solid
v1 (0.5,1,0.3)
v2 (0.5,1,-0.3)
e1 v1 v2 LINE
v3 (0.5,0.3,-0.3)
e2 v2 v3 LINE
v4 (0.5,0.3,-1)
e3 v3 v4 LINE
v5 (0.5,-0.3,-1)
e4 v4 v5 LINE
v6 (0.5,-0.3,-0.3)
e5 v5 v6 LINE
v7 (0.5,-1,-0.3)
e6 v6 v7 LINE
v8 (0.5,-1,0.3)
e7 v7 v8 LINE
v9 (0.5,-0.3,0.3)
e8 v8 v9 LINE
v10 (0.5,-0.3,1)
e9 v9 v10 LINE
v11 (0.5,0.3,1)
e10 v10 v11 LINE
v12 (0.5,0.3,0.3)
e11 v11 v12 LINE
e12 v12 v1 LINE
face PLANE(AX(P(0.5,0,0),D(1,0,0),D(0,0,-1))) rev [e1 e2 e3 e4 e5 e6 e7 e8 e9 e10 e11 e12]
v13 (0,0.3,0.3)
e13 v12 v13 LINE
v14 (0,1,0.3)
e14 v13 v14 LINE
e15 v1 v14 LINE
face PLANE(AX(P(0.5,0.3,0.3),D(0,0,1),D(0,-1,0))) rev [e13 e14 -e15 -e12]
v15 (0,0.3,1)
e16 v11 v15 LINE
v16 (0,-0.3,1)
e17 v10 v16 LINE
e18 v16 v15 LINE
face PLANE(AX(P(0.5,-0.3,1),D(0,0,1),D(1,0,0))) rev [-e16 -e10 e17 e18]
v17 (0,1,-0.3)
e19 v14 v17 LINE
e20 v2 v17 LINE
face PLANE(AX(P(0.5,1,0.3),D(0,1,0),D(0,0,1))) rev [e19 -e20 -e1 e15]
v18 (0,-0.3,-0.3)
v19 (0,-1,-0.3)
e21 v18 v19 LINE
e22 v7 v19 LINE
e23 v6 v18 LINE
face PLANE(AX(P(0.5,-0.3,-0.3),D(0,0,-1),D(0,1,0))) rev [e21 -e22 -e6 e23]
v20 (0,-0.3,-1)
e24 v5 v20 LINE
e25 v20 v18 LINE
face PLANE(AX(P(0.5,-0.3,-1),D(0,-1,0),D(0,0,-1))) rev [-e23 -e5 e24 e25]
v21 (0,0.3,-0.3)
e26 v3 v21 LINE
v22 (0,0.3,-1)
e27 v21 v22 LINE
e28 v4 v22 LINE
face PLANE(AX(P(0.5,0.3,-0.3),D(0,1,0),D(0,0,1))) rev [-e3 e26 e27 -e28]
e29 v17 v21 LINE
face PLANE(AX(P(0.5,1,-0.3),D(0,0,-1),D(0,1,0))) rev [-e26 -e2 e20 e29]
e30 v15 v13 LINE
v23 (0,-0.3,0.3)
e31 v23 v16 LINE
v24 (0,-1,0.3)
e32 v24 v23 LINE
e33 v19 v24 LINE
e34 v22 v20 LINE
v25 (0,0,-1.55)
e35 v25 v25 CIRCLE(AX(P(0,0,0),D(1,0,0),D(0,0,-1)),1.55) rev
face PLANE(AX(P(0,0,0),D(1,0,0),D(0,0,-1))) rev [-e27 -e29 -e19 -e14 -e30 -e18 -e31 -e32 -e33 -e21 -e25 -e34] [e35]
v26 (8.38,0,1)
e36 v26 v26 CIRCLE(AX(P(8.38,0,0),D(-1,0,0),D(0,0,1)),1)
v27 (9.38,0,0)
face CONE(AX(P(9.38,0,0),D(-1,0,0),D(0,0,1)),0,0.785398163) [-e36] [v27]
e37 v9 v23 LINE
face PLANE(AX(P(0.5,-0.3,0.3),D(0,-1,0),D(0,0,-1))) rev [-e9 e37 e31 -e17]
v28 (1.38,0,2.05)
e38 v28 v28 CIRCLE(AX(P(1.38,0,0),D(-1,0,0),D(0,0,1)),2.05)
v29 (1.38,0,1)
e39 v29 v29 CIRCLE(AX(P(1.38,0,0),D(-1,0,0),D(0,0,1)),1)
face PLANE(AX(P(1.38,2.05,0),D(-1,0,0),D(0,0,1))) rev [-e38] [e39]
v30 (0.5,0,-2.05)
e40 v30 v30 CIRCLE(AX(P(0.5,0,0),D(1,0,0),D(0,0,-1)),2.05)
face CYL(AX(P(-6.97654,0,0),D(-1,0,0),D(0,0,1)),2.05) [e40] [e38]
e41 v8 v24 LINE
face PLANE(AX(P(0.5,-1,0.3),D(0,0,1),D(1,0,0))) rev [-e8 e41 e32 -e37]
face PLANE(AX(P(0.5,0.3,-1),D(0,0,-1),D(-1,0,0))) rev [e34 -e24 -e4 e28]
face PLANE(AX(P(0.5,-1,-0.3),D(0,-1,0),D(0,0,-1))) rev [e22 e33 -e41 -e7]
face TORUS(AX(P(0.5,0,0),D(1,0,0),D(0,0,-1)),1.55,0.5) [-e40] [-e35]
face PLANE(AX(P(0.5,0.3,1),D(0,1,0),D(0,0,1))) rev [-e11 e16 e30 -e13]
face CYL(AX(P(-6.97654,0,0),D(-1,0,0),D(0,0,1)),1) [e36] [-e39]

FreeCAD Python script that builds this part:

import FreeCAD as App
import Part
import Sketcher
from FreeCAD import Vector
Q = App.Units.Quantity


def edges_at(feature, points):
    """Names of the edges that pass closest to the given points."""
    edges = feature.Shape.Edges
    near = lambda p: min(range(len(edges)), key=lambda i: edges[i].distToShape(Part.Vertex(*p))[0])
    return sorted({f"Edge{near(p) + 1}" for p in points})

doc = App.newDocument("Part")
body = doc.addObject("PartDesign::Body", "Body")

# Sketch on XY plane
sketch1 = body.newObject("Sketcher::SketchObject", "Sketch")
sketch1.AttachmentSupport = (doc.getObject("XY_Plane"), [""])
sketch1.MapMode = "FlatFace"
sketch1.addGeometry([
    Part.LineSegment(Vector(0, 2, 0), Vector(0, 0, 0)),  # 0
    Part.LineSegment(Vector(0, 0, 0), Vector(9.4, 0, 0)),  # 1
    Part.LineSegment(Vector(9.4, 0, 0), Vector(8.4, 1, 0)),  # 2
    Part.LineSegment(Vector(8.4, 1, 0), Vector(1.4, 1, 0)),  # 3
    Part.LineSegment(Vector(1.4, 1, 0), Vector(1.4, 2, 0)),  # 4
    Part.LineSegment(Vector(1.4, 2, 0), Vector(0, 2, 0)),  # 5
], False)
sketch1.addConstraint([
    Sketcher.Constraint("Coincident", 0, 2, 1, 1),
    Sketcher.Constraint("Coincident", 1, 2, 2, 1),
    Sketcher.Constraint("Coincident", 2, 2, 3, 1),
    Sketcher.Constraint("Coincident", 3, 2, 4, 1),
    Sketcher.Constraint("Coincident", 4, 2, 5, 1),
    Sketcher.Constraint("Coincident", 5, 2, 0, 1),
    Sketcher.Constraint("Vertical", 0),
    Sketcher.Constraint("Horizontal", 1),
    Sketcher.Constraint("Horizontal", 3),
    Sketcher.Constraint("Vertical", 4),
    Sketcher.Constraint("Horizontal", 5),
    Sketcher.Constraint("Coincident", 0, 2, -1, 1),
    Sketcher.Constraint("DistanceX", 3, 2, 3, 1, 7.0),
    Sketcher.Constraint("Angle", 2, Q("135 deg")),
    Sketcher.Constraint("DistanceY", -1, 1, 2, 2, 1.0),
    Sketcher.Constraint("DistanceX", 1, 1, 1, 2, 9.38),
    Sketcher.Constraint("DistanceY", 0, 2, 0, 1, 2.05),
])
revolution = body.newObject("PartDesign::Revolution", "Revolution")
revolution.Profile = sketch1
revolution.ReferenceAxis = (sketch1, ["H_Axis"])
revolution.Angle = 360

# Sketch on YZ plane
sketch2 = body.newObject("Sketcher::SketchObject", "Sketch001")
sketch2.AttachmentSupport = (doc.getObject("YZ_Plane"), [""])
sketch2.MapMode = "FlatFace"
sketch2.addGeometry([
    Part.LineSegment(Vector(0.3, -0.3, 0), Vector(0.3, -1, 0)),  # 0
    Part.LineSegment(Vector(0.3, -1, 0), Vector(-0.3, -1, 0)),  # 1
    Part.LineSegment(Vector(-0.3, -1, 0), Vector(-0.3, -0.3, 0)),  # 2
    Part.LineSegment(Vector(-0.3, -0.3, 0), Vector(-1, -0.3, 0)),  # 3
    Part.LineSegment(Vector(-1, -0.3, 0), Vector(-1, 0.3, 0)),  # 4
    Part.LineSegment(Vector(-1, 0.3, 0), Vector(-0.3, 0.3, 0)),  # 5
    Part.LineSegment(Vector(-0.3, 0.3, 0), Vector(-0.3, 1, 0)),  # 6
    Part.LineSegment(Vector(-0.3, 1, 0), Vector(0.3, 1, 0)),  # 7
    Part.LineSegment(Vector(0.3, 1, 0), Vector(0.3, 0.3, 0)),  # 8
    Part.LineSegment(Vector(0.3, 0.3, 0), Vector(1, 0.3, 0)),  # 9
    Part.LineSegment(Vector(1, 0.3, 0), Vector(1, -0.3, 0)),  # 10
    Part.LineSegment(Vector(1, -0.3, 0), Vector(0.3, -0.3, 0)),  # 11
], False)
sketch2.addConstraint([
    Sketcher.Constraint("Coincident", 0, 2, 1, 1),
    Sketcher.Constraint("Coincident", 1, 2, 2, 1),
    Sketcher.Constraint("Coincident", 2, 2, 3, 1),
    Sketcher.Constraint("Coincident", 3, 2, 4, 1),
    Sketcher.Constraint("Coincident", 4, 2, 5, 1),
    Sketcher.Constraint("Coincident", 5, 2, 6, 1),
    Sketcher.Constraint("Coincident", 6, 2, 7, 1),
    Sketcher.Constraint("Coincident", 7, 2, 8, 1),
    Sketcher.Constraint("Coincident", 8, 2, 9, 1),
    Sketcher.Constraint("Coincident", 9, 2, 10, 1),
    Sketcher.Constraint("Coincident", 10, 2, 11, 1),
    Sketcher.Constraint("Coincident", 11, 2, 0, 1),
    Sketcher.Constraint("Vertical", 0),
    Sketcher.Constraint("Horizontal", 1),
    Sketcher.Constraint("Vertical", 2),
    Sketcher.Constraint("Horizontal", 3),
    Sketcher.Constraint("Vertical", 4),
    Sketcher.Constraint("Horizontal", 5),
    Sketcher.Constraint("Vertical", 6),
    Sketcher.Constraint("Horizontal", 7),
    Sketcher.Constraint("Vertical", 8),
    Sketcher.Constraint("Horizontal", 9),
    Sketcher.Constraint("Vertical", 10),
    Sketcher.Constraint("Horizontal", 11),
    Sketcher.Constraint("Symmetric", 0, 2, 6, 2, -1, 1),
    Sketcher.Constraint("Symmetric", 2, 2, 8, 2, -1, 1),
    Sketcher.Constraint("Symmetric", 4, 2, 10, 2, -1, 1),
    Sketcher.Constraint("Symmetric", 5, 2, 8, 2, -2),
    Sketcher.Constraint("Equal", 11, 0),
    Sketcher.Constraint("Equal", 7, 4),
    Sketcher.Constraint("DistanceX", 1, 2, 1, 1, 0.6),
    Sketcher.Constraint("DistanceX", 3, 2, 3, 1, 0.7),
])
pocket1 = body.newObject("PartDesign::Pocket", "Pocket")
pocket1.Profile = sketch2
pocket1.Length = 0.5
pocket1.Reversed = True
doc.recompute()

fillet = body.newObject("PartDesign::Fillet", "Fillet")
fillet.Base = (pocket1, edges_at(pocket1, [(0, -2.05, 0)]))
fillet.Radius = 0.5

doc.recompute()
